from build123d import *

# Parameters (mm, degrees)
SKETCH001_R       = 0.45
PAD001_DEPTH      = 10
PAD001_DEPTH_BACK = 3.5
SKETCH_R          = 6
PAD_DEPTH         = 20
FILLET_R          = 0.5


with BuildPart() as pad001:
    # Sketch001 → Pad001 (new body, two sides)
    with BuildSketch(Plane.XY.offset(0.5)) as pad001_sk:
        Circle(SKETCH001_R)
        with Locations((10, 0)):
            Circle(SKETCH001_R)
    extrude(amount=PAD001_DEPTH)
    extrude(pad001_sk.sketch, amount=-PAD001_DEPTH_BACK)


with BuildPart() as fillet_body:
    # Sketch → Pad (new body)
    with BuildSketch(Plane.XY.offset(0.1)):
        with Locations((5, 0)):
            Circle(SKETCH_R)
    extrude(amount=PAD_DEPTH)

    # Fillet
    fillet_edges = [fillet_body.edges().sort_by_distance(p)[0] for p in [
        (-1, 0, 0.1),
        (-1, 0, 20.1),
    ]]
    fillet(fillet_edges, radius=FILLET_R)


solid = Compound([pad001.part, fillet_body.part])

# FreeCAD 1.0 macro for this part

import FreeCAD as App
import Part
import Sketcher

V = App.Vector
Q = App.Units.Quantity


def edges_at(feature, points):
    """Names of the edges that pass closest to the given points."""
    edges = feature.Shape.Edges
    near = lambda p: min(range(len(edges)), key=lambda i: edges[i].distToShape(Part.Vertex(*p))[0])
    return sorted({f"Edge{near(p) + 1}" for p in points})

doc = App.newDocument("Part")
params = doc.addObject("Spreadsheet::Sheet", "Params")
for row, (alias, value) in enumerate([
    ("sketch1_diameter", "0.9 mm"),
    ("pad1_length", "10 mm"),
    ("pad1_length2", "3.5 mm"),
    ("sketch2_diameter", "12 mm"),
    ("pad2_length", "20 mm"),
    ("fillet_radius", "0.5 mm"),
], start=1):
    params.set(f"A{row}", alias)
    params.set(f"B{row}", "=" + value)
    params.setAlias(f"B{row}", alias)

body = doc.addObject("PartDesign::Body", "Body")
body.AllowCompound = True

sketch1 = body.newObject("Sketcher::SketchObject", "Sketch")
sketch1.AttachmentSupport = (doc.getObject("XY_Plane"), [""])
sketch1.MapMode = "FlatFace"
sketch1.AttachmentOffset = App.Placement(V(0, 0, 0.5), App.Rotation())
sketch1.addGeometry(Part.Circle(V(0, 0, 0), V(0, 0, 1), 0.45), False)
sketch1.addGeometry(Part.Circle(V(10, 0, 0), V(0, 0, 1), 0.45), False)
sketch1.addConstraint(Sketcher.Constraint("Coincident", 0, 3, -1, 1))
sketch1.addConstraint(Sketcher.Constraint("Equal", 0, 1))
sketch1.addConstraint(Sketcher.Constraint("PointOnObject", 1, 3, -1))
sketch1.addConstraint(Sketcher.Constraint("Diameter", 0, Q("0.9 mm")))
sketch1.addConstraint(Sketcher.Constraint("DistanceX", -1, 1, 1, 3, Q("10 mm")))
sketch1.setExpression("Constraints[3]", "Params.sketch1_diameter")
pad1 = body.newObject("PartDesign::Pad", "Pad")
pad1.Profile = sketch1
pad1.Type = "TwoLengths"
pad1.setExpression("Length", "Params.pad1_length")
pad1.setExpression("Length2", "Params.pad1_length2")
body2 = doc.addObject("PartDesign::Body", "Body001")

sketch2 = body2.newObject("Sketcher::SketchObject", "Sketch001")
sketch2.AttachmentSupport = (doc.getObject("XY_Plane001"), [""])
sketch2.MapMode = "FlatFace"
sketch2.AttachmentOffset = App.Placement(V(0, 0, 0.1), App.Rotation())
sketch2.addGeometry(Part.Circle(V(5, 0, 0), V(0, 0, 1), 6), False)
sketch2.addConstraint(Sketcher.Constraint("PointOnObject", 0, 3, -1))
sketch2.addConstraint(Sketcher.Constraint("Diameter", 0, Q("12 mm")))
sketch2.addConstraint(Sketcher.Constraint("DistanceX", -1, 1, 0, 3, Q("5 mm")))
sketch2.setExpression("Constraints[1]", "Params.sketch2_diameter")
pad2 = body2.newObject("PartDesign::Pad", "Pad001")
pad2.Profile = sketch2
pad2.setExpression("Length", "Params.pad2_length")
doc.recompute()

fillet = body2.newObject("PartDesign::Fillet", "Fillet")
fillet.Base = (pad2, edges_at(pad2, [(-1, 0, 0.1), (-1, 0, 20.1)]))
fillet.setExpression("Radius", "Params.fillet_radius")

doc.recompute()
